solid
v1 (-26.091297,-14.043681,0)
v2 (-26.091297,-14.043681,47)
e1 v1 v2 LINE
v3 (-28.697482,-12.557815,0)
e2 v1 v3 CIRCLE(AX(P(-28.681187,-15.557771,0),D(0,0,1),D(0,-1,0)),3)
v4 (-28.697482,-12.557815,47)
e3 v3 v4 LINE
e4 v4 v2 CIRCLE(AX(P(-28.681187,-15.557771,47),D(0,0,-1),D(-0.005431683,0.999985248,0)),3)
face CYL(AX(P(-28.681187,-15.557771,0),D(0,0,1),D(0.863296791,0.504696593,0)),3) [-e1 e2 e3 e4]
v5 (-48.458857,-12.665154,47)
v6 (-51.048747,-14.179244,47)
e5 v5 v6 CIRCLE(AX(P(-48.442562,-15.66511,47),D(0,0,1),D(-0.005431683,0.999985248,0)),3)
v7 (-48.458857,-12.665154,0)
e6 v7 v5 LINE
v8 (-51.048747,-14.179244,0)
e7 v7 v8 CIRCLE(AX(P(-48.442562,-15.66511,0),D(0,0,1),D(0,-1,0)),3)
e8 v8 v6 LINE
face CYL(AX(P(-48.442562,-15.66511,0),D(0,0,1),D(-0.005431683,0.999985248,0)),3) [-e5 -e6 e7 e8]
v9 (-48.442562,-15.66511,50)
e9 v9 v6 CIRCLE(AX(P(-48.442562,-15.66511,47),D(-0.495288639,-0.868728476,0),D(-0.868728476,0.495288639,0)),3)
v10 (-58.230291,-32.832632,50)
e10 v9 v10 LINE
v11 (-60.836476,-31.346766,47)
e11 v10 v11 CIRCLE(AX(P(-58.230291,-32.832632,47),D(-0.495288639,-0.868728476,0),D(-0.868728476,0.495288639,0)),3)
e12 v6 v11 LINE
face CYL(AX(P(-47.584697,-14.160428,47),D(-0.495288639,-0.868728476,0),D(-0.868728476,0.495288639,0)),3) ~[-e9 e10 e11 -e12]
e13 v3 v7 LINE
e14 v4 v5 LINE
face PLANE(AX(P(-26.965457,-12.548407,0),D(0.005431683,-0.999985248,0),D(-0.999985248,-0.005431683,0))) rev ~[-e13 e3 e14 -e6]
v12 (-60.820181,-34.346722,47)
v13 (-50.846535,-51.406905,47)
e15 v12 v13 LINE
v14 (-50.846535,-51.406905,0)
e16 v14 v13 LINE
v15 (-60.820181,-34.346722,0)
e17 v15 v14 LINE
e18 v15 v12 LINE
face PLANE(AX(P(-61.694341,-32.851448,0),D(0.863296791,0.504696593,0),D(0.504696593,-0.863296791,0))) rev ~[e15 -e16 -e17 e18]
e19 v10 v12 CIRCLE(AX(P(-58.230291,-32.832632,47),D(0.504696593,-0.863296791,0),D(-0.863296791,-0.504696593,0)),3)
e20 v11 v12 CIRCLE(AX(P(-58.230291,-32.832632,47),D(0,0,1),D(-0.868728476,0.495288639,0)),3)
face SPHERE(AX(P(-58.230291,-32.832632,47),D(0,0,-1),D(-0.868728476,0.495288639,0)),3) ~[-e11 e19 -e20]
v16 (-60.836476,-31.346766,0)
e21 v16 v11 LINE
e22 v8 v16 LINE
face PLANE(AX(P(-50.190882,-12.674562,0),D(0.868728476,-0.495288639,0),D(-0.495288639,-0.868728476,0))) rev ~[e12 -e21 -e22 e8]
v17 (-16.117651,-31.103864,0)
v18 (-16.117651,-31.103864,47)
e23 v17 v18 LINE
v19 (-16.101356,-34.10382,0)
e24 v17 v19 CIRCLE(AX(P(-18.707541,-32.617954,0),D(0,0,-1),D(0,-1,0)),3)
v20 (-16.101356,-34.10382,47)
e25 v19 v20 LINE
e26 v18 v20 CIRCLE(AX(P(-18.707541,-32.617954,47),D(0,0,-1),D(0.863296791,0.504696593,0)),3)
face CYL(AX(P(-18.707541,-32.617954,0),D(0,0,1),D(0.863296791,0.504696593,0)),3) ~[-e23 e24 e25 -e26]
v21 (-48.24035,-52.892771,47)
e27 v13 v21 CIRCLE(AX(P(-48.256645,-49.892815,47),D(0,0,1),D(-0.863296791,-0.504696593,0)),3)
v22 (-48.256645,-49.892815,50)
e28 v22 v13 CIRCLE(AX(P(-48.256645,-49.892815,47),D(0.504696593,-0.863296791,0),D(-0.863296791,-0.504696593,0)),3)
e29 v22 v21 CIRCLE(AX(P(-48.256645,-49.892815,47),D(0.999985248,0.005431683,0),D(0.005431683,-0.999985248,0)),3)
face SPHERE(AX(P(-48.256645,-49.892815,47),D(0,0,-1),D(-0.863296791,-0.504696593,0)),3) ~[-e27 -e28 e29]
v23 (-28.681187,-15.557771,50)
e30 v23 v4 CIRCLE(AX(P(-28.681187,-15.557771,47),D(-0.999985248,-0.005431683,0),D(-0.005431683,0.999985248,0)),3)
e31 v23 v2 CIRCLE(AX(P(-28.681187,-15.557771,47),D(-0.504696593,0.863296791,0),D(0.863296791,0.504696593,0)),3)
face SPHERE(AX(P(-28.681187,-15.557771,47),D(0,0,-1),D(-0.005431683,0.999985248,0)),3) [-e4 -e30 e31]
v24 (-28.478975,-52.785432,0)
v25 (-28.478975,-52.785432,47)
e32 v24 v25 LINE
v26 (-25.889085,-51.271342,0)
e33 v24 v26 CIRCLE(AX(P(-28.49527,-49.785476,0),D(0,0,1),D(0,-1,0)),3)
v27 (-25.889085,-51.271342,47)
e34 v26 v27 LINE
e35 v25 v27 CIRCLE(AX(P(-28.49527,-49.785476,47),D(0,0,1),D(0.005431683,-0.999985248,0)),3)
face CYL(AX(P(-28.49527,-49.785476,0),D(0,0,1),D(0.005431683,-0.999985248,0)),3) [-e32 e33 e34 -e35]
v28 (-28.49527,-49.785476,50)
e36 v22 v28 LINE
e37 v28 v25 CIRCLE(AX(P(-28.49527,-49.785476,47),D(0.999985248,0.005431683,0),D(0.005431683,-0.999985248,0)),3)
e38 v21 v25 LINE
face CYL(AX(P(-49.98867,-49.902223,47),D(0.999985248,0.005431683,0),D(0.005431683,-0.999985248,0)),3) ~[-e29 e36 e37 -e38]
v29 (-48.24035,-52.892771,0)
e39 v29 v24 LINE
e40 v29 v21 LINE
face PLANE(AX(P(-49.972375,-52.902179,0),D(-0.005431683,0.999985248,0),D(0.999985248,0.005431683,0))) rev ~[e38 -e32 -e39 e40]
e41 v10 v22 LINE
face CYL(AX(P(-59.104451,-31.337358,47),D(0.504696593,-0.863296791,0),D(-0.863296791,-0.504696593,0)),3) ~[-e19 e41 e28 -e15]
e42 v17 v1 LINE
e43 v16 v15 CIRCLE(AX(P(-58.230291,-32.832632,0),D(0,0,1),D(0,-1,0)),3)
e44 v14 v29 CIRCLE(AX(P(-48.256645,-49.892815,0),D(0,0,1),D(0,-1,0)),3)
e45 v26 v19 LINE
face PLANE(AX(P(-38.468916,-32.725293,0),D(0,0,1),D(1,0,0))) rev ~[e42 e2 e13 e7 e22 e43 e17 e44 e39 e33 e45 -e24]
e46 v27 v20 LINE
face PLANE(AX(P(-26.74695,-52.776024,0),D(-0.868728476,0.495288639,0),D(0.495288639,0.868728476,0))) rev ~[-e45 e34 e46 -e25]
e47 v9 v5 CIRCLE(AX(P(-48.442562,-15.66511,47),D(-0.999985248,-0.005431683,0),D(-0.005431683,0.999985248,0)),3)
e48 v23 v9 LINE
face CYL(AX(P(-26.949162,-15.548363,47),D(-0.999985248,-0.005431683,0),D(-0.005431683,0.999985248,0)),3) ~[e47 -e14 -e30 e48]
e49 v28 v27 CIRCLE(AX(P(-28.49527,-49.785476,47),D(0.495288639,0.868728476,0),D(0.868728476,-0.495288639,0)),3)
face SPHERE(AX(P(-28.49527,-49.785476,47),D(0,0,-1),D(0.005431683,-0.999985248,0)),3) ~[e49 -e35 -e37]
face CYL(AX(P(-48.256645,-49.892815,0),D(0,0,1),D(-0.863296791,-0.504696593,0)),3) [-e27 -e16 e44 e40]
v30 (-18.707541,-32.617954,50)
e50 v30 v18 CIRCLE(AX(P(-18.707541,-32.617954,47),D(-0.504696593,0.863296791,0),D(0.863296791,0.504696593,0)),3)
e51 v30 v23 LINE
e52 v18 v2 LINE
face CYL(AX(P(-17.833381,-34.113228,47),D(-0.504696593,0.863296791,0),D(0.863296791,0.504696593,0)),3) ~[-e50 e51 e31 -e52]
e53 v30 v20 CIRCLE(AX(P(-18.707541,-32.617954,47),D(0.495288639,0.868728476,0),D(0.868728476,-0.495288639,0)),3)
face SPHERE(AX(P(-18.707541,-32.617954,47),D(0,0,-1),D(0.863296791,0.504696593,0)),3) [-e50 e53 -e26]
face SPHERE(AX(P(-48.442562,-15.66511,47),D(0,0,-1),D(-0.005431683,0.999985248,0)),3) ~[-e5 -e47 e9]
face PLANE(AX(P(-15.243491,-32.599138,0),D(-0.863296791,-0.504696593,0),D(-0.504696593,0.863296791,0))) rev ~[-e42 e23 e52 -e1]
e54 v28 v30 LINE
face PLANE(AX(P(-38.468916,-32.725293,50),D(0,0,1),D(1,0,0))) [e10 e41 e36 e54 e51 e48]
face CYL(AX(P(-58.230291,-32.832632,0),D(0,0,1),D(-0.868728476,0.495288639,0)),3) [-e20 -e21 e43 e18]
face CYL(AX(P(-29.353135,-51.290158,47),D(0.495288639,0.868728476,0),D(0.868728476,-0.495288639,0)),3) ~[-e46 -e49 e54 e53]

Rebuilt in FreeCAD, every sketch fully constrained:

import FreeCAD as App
import Part
import Sketcher

V = App.Vector
Q = App.Units.Quantity


def edges_at(feature, points):
    """Names of the edges that pass closest to the given points."""
    edges = feature.Shape.Edges
    near = lambda p: min(range(len(edges)), key=lambda i: edges[i].distToShape(Part.Vertex(*p))[0])
    return sorted({f"Edge{near(p) + 1}" for p in points})

doc = App.newDocument("Part")
params = doc.addObject("Spreadsheet::Sheet", "Params")
for row, (alias, value) in enumerate([
    ("pad1_length", "50 mm"),
    ("fillet_radius", "3 mm"),
], start=1):
    params.set(f"A{row}", alias)
    params.set(f"B{row}", "=" + value)
    params.setAlias(f"B{row}", alias)

body = doc.addObject("PartDesign::Body", "Body")

sketch1 = body.newObject("Sketcher::SketchObject", "Sketch")
sketch1.AttachmentSupport = (doc.getObject("XY_Plane"), [""])
sketch1.MapMode = "FlatFace"
sketch1.addGeometry([
    Part.LineSegment(V(-15.243491, -32.599138, 0), V(-26.965457, -12.548407, 0)),
    Part.LineSegment(V(-26.965457, -12.548407, 0), V(-50.190882, -12.674562, 0)),
    Part.LineSegment(V(-50.190882, -12.674562, 0), V(-61.694341, -32.851448, 0)),
    Part.LineSegment(V(-61.694341, -32.851448, 0), V(-49.972375, -52.902179, 0)),
    Part.LineSegment(V(-49.972375, -52.902179, 0), V(-26.74695, -52.776024, 0)),
    Part.LineSegment(V(-26.74695, -52.776024, 0), V(-15.243491, -32.599138, 0)),
], False)
sketch1.addConstraint([
    Sketcher.Constraint("Coincident", 0, 2, 1, 1),
    Sketcher.Constraint("Coincident", 1, 2, 2, 1),
    Sketcher.Constraint("Coincident", 2, 2, 3, 1),
    Sketcher.Constraint("Coincident", 3, 2, 4, 1),
    Sketcher.Constraint("Coincident", 4, 2, 5, 1),
    Sketcher.Constraint("Coincident", 5, 2, 0, 1),
    Sketcher.Constraint("Parallel", 0, 3),
    Sketcher.Constraint("Parallel", 1, 4),
    Sketcher.Constraint("Parallel", 2, 5),
    Sketcher.Constraint("Equal", 0, 1),
    Sketcher.Constraint("Equal", 1, 2),
    Sketcher.Constraint("Equal", 2, 3),
    Sketcher.Constraint("Distance", 0, Q("23.225768 mm")),
    Sketcher.Constraint("DistanceX", 2, 2, -1, 1, Q("61.694341 mm")),
    Sketcher.Constraint("DistanceY", 3, 2, -1, 1, Q("52.902179 mm")),
    Sketcher.Constraint("DistanceX", 4, 2, -1, 1, Q("26.74695 mm")),
    Sketcher.Constraint("DistanceX", 5, 2, -1, 1, Q("15.243491 mm")),
    Sketcher.Constraint("DistanceY", 5, 2, -1, 1, Q("32.599138 mm")),
])
pad1 = body.newObject("PartDesign::Pad", "Pad")
pad1.Profile = sketch1
pad1.setExpression("Length", "Params.pad1_length")
doc.recompute()

fillet = body.newObject("PartDesign::Fillet", "Fillet")
fillet.Base = (pad1, edges_at(pad1, [
    (-38.578, -12.611, 50),
    (-55.943, -22.763, 50),
    (-55.833, -42.877, 50),
    (-21.104, -22.574, 50),
    (-38.36, -52.839, 50),
    (-20.995, -42.688, 50),
    (-50.191, -12.675, 25),
    (-61.694, -32.851, 25),
    (-26.965, -12.548, 25),
    (-15.243, -32.599, 25),
    (-26.747, -52.776, 25),
    (-49.972, -52.902, 25),
]))
fillet.setExpression("Radius", "Params.fillet_radius")

doc.recompute()
